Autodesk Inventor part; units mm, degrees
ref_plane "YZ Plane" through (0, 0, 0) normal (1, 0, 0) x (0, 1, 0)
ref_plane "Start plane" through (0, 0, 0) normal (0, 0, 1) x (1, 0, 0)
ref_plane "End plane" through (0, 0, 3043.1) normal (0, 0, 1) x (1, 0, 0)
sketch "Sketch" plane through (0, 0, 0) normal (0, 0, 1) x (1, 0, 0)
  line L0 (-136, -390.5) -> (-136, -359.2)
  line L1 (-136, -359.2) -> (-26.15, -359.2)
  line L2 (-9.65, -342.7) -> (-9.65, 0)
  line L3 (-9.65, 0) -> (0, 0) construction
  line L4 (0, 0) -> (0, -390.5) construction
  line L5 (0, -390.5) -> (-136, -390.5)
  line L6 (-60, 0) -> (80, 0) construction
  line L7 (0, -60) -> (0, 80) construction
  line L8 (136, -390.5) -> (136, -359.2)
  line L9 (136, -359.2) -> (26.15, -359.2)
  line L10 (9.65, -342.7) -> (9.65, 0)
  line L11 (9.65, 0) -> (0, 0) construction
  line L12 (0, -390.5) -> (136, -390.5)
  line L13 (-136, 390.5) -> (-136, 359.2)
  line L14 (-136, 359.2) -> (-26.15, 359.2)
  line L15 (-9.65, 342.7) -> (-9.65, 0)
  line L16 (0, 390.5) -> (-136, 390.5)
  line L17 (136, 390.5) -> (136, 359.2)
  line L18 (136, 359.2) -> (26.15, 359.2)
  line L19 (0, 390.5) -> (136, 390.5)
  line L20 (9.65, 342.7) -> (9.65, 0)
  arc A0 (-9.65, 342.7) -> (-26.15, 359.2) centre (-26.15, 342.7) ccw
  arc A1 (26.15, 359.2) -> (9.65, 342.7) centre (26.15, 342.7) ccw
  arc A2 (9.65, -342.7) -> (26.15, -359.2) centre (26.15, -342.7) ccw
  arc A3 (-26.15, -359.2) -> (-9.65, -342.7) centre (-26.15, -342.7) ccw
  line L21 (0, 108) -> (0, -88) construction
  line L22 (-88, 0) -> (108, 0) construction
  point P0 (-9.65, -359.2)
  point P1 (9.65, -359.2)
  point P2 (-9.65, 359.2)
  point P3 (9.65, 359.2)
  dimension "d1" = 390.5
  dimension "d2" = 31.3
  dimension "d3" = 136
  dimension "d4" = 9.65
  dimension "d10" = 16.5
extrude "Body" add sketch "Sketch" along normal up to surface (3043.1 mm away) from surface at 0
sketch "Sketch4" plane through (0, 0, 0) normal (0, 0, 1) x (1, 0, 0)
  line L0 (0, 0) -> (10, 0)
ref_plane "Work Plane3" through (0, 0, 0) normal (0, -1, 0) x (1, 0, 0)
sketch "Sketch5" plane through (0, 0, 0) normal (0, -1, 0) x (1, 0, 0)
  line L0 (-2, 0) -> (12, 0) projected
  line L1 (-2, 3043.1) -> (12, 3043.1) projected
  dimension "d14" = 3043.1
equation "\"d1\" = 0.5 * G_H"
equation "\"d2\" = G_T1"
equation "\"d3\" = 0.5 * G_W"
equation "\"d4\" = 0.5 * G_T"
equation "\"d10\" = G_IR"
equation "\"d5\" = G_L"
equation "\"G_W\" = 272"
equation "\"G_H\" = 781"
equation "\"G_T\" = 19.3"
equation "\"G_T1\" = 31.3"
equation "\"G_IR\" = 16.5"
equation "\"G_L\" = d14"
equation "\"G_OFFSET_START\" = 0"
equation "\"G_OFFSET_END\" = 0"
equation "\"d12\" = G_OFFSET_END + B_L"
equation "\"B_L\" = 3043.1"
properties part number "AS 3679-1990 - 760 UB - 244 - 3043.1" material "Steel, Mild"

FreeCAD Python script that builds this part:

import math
import FreeCAD as App
import Part
import Sketcher

V = App.Vector

doc = App.newDocument("Part")
body = doc.addObject("PartDesign::Body", "Body")

# Sketch on XY plane
sketch1 = body.newObject("Sketcher::SketchObject", "Sketch")
sketch1.AttachmentSupport = (doc.getObject("XY_Plane"), [""])
sketch1.MapMode = "FlatFace"
sketch1.addGeometry([
    Part.LineSegment(V(-136, -359.2, 0), V(-136, -390.5, 0)),  # 0
    Part.LineSegment(V(-136, -390.5, 0), V(136, -390.5, 0)),  # 1
    Part.LineSegment(V(136, -390.5, 0), V(136, -359.2, 0)),  # 2
    Part.LineSegment(V(136, -359.2, 0), V(26.15, -359.2, 0)),  # 3
    Part.ArcOfCircle(Part.Circle(V(26.15, -342.7, 0), V(0, 0, 1), 16.5), math.radians(180), math.radians(270)),  # 4
    Part.LineSegment(V(9.65, -342.7, 0), V(9.65, 342.7, 0)),  # 5
    Part.ArcOfCircle(Part.Circle(V(26.15, 342.7, 0), V(0, 0, 1), 16.5), math.radians(90), math.radians(180)),  # 6
    Part.LineSegment(V(26.15, 359.2, 0), V(136, 359.2, 0)),  # 7
    Part.LineSegment(V(136, 359.2, 0), V(136, 390.5, 0)),  # 8
    Part.LineSegment(V(136, 390.5, 0), V(-136, 390.5, 0)),  # 9
    Part.LineSegment(V(-136, 390.5, 0), V(-136, 359.2, 0)),  # 10
    Part.LineSegment(V(-136, 359.2, 0), V(-26.15, 359.2, 0)),  # 11
    Part.ArcOfCircle(Part.Circle(V(-26.15, 342.7, 0), V(0, 0, 1), 16.5), math.radians(0), math.radians(90)),  # 12
    Part.LineSegment(V(-9.65, 342.7, 0), V(-9.65, -342.7, 0)),  # 13
    Part.ArcOfCircle(Part.Circle(V(-26.15, -342.7, 0), V(0, 0, 1), 16.5), math.radians(-90), math.radians(0)),  # 14
    Part.LineSegment(V(-26.15, -359.2, 0), V(-136, -359.2, 0)),  # 15
], False)
sketch1.addConstraint([
    Sketcher.Constraint("Coincident", 0, 2, 1, 1),
    Sketcher.Constraint("Coincident", 1, 2, 2, 1),
    Sketcher.Constraint("Coincident", 2, 2, 3, 1),
    Sketcher.Constraint("Tangent", 3, 2, 4, 2),
    Sketcher.Constraint("Tangent", 4, 1, 5, 1),
    Sketcher.Constraint("Tangent", 5, 2, 6, 2),
    Sketcher.Constraint("Tangent", 6, 1, 7, 1),
    Sketcher.Constraint("Coincident", 7, 2, 8, 1),
    Sketcher.Constraint("Coincident", 8, 2, 9, 1),
    Sketcher.Constraint("Coincident", 9, 2, 10, 1),
    Sketcher.Constraint("Coincident", 10, 2, 11, 1),
    Sketcher.Constraint("Tangent", 11, 2, 12, 2),
    Sketcher.Constraint("Tangent", 12, 1, 13, 1),
    Sketcher.Constraint("Tangent", 13, 2, 14, 2),
    Sketcher.Constraint("Tangent", 14, 1, 15, 1),
    Sketcher.Constraint("Coincident", 15, 2, 0, 1),
    Sketcher.Constraint("Vertical", 0),
    Sketcher.Constraint("Horizontal", 1),
    Sketcher.Constraint("Vertical", 2),
    Sketcher.Constraint("Horizontal", 3),
    Sketcher.Constraint("Vertical", 5),
    Sketcher.Constraint("Horizontal", 7),
    Sketcher.Constraint("Vertical", 8),
    Sketcher.Constraint("Horizontal", 9),
    Sketcher.Constraint("Vertical", 10),
    Sketcher.Constraint("Horizontal", 11),
    Sketcher.Constraint("Vertical", 13),
    Sketcher.Constraint("Horizontal", 15),
    Sketcher.Constraint("Equal", 4, 6),
    Sketcher.Constraint("Equal", 6, 12),
    Sketcher.Constraint("Equal", 12, 14),
    Sketcher.Constraint("Symmetric", 4, 3, 12, 3, -1, 1),
    Sketcher.Constraint("Symmetric", 0, 2, 8, 2, -1, 1),
    Sketcher.Constraint("Symmetric", 7, 2, 10, 2, -2),
    Sketcher.Constraint("Symmetric", 2, 2, 15, 2, -2),
    Sketcher.Constraint("Radius", 4, 16.5),
    Sketcher.Constraint("DistanceY", 0, 2, 0, 1, 31.3),
    Sketcher.Constraint("DistanceX", 0, 2, -1, 1, 136.0),
    Sketcher.Constraint("DistanceY", 0, 2, -1, 1, 390.5),
    Sketcher.Constraint("DistanceX", -1, 1, 4, 1, 9.65),
])
pad1 = body.newObject("PartDesign::Pad", "Pad")
pad1.Profile = sketch1
pad1.Length = 3043.1

doc.recompute()
